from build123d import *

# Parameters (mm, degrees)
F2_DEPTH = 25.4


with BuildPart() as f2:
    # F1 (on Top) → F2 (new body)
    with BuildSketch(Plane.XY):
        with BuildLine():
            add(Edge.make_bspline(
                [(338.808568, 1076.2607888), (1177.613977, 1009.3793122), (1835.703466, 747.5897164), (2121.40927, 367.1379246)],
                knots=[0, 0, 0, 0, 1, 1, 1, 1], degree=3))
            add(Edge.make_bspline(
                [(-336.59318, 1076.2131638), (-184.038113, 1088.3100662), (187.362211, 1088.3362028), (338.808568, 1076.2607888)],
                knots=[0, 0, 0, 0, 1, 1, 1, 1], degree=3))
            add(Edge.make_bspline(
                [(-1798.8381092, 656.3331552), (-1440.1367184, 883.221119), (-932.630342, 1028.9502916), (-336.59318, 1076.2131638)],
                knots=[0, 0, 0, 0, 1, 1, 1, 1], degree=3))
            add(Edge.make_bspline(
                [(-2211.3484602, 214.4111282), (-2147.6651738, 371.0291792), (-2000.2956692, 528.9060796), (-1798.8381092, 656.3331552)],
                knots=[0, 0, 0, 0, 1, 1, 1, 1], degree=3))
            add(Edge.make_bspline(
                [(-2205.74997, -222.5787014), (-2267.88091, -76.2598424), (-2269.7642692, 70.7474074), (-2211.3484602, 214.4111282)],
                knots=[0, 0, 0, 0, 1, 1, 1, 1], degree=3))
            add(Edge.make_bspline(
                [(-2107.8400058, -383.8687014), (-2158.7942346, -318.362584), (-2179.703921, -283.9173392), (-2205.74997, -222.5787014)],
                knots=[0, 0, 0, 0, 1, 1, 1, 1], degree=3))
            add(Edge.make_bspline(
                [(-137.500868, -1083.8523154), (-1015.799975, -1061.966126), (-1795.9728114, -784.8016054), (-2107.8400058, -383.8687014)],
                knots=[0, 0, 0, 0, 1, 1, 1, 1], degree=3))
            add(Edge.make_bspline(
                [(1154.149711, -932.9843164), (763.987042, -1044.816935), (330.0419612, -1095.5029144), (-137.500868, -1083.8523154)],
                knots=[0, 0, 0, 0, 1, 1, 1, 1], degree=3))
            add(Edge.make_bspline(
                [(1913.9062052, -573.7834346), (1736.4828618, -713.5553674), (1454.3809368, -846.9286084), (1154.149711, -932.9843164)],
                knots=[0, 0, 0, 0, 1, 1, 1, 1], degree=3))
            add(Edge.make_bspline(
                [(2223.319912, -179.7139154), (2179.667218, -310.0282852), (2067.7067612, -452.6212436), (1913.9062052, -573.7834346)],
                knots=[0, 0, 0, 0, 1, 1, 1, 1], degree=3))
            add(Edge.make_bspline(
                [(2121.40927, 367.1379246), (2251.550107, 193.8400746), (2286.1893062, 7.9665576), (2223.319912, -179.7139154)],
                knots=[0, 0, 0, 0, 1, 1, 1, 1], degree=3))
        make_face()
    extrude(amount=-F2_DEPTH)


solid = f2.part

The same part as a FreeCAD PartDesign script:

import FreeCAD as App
import Part
import Sketcher
from FreeCAD import Vector

doc = App.newDocument("Part")
params = doc.addObject("Spreadsheet::Sheet", "Params")
for row, (alias, value) in enumerate([
    ("pad1_length", "1 in"),
], start=1):
    params.set(f"A{row}", alias)
    params.set(f"B{row}", "=" + value)
    params.setAlias(f"B{row}", alias)

body = doc.addObject("PartDesign::Body", "Body")

# Sketch on XY plane
sketch1 = body.newObject("Sketcher::SketchObject", "Sketch")
sketch1.AttachmentSupport = (doc.getObject("XY_Plane"), [""])
sketch1.MapMode = "FlatFace"
sketch1.addGeometry([
    Part.BSplineCurve([Vector(338.808568, 1076.260789, 0), Vector(1177.613977, 1009.379312, 0), Vector(1835.703466, 747.589716, 0), Vector(2121.40927, 367.137925, 0)], [4, 4], [0, 1], False, 3, [1, 1, 1, 1], False),  # 0
    Part.BSplineCurve([Vector(-336.59318, 1076.213164, 0), Vector(-184.038113, 1088.310066, 0), Vector(187.362211, 1088.336203, 0), Vector(338.808568, 1076.260789, 0)], [4, 4], [0, 1], False, 3, [1, 1, 1, 1], False),  # 1
    Part.BSplineCurve([Vector(-1798.838109, 656.333155, 0), Vector(-1440.136718, 883.221119, 0), Vector(-932.630342, 1028.950292, 0), Vector(-336.59318, 1076.213164, 0)], [4, 4], [0, 1], False, 3, [1, 1, 1, 1], False),  # 2
    Part.BSplineCurve([Vector(-2211.34846, 214.411128, 0), Vector(-2147.665174, 371.029179, 0), Vector(-2000.295669, 528.90608, 0), Vector(-1798.838109, 656.333155, 0)], [4, 4], [0, 1], False, 3, [1, 1, 1, 1], False),  # 3
    Part.BSplineCurve([Vector(-2205.74997, -222.578701, 0), Vector(-2267.88091, -76.259842, 0), Vector(-2269.764269, 70.747407, 0), Vector(-2211.34846, 214.411128, 0)], [4, 4], [0, 1], False, 3, [1, 1, 1, 1], False),  # 4
    Part.BSplineCurve([Vector(-2107.840006, -383.868701, 0), Vector(-2158.794235, -318.362584, 0), Vector(-2179.703921, -283.917339, 0), Vector(-2205.74997, -222.578701, 0)], [4, 4], [0, 1], False, 3, [1, 1, 1, 1], False),  # 5
    Part.BSplineCurve([Vector(-137.500868, -1083.852315, 0), Vector(-1015.799975, -1061.966126, 0), Vector(-1795.972811, -784.801605, 0), Vector(-2107.840006, -383.868701, 0)], [4, 4], [0, 1], False, 3, [1, 1, 1, 1], False),  # 6
    Part.BSplineCurve([Vector(1154.149711, -932.984316, 0), Vector(763.987042, -1044.816935, 0), Vector(330.041961, -1095.502914, 0), Vector(-137.500868, -1083.852315, 0)], [4, 4], [0, 1], False, 3, [1, 1, 1, 1], False),  # 7
    Part.BSplineCurve([Vector(1913.906205, -573.783435, 0), Vector(1736.482862, -713.555367, 0), Vector(1454.380937, -846.928608, 0), Vector(1154.149711, -932.984316, 0)], [4, 4], [0, 1], False, 3, [1, 1, 1, 1], False),  # 8
    Part.BSplineCurve([Vector(2223.319912, -179.713915, 0), Vector(2179.667218, -310.028285, 0), Vector(2067.706761, -452.621244, 0), Vector(1913.906205, -573.783435, 0)], [4, 4], [0, 1], False, 3, [1, 1, 1, 1], False),  # 9
    Part.BSplineCurve([Vector(2121.40927, 367.137925, 0), Vector(2251.550107, 193.840075, 0), Vector(2286.189306, 7.966558, 0), Vector(2223.319912, -179.713915, 0)], [4, 4], [0, 1], False, 3, [1, 1, 1, 1], False),  # 10
], False)
sketch1.addConstraint([
    Sketcher.Constraint("Block", 0),
    Sketcher.Constraint("Block", 1),
    Sketcher.Constraint("Block", 2),
    Sketcher.Constraint("Block", 3),
    Sketcher.Constraint("Block", 4),
    Sketcher.Constraint("Block", 5),
    Sketcher.Constraint("Block", 6),
    Sketcher.Constraint("Block", 7),
    Sketcher.Constraint("Block", 8),
    Sketcher.Constraint("Block", 9),
    Sketcher.Constraint("Block", 10),
])
pad1 = body.newObject("PartDesign::Pad", "Pad")
pad1.Profile = sketch1
pad1.setExpression("Length", "Params.pad1_length")
pad1.Reversed = True

doc.recompute()
